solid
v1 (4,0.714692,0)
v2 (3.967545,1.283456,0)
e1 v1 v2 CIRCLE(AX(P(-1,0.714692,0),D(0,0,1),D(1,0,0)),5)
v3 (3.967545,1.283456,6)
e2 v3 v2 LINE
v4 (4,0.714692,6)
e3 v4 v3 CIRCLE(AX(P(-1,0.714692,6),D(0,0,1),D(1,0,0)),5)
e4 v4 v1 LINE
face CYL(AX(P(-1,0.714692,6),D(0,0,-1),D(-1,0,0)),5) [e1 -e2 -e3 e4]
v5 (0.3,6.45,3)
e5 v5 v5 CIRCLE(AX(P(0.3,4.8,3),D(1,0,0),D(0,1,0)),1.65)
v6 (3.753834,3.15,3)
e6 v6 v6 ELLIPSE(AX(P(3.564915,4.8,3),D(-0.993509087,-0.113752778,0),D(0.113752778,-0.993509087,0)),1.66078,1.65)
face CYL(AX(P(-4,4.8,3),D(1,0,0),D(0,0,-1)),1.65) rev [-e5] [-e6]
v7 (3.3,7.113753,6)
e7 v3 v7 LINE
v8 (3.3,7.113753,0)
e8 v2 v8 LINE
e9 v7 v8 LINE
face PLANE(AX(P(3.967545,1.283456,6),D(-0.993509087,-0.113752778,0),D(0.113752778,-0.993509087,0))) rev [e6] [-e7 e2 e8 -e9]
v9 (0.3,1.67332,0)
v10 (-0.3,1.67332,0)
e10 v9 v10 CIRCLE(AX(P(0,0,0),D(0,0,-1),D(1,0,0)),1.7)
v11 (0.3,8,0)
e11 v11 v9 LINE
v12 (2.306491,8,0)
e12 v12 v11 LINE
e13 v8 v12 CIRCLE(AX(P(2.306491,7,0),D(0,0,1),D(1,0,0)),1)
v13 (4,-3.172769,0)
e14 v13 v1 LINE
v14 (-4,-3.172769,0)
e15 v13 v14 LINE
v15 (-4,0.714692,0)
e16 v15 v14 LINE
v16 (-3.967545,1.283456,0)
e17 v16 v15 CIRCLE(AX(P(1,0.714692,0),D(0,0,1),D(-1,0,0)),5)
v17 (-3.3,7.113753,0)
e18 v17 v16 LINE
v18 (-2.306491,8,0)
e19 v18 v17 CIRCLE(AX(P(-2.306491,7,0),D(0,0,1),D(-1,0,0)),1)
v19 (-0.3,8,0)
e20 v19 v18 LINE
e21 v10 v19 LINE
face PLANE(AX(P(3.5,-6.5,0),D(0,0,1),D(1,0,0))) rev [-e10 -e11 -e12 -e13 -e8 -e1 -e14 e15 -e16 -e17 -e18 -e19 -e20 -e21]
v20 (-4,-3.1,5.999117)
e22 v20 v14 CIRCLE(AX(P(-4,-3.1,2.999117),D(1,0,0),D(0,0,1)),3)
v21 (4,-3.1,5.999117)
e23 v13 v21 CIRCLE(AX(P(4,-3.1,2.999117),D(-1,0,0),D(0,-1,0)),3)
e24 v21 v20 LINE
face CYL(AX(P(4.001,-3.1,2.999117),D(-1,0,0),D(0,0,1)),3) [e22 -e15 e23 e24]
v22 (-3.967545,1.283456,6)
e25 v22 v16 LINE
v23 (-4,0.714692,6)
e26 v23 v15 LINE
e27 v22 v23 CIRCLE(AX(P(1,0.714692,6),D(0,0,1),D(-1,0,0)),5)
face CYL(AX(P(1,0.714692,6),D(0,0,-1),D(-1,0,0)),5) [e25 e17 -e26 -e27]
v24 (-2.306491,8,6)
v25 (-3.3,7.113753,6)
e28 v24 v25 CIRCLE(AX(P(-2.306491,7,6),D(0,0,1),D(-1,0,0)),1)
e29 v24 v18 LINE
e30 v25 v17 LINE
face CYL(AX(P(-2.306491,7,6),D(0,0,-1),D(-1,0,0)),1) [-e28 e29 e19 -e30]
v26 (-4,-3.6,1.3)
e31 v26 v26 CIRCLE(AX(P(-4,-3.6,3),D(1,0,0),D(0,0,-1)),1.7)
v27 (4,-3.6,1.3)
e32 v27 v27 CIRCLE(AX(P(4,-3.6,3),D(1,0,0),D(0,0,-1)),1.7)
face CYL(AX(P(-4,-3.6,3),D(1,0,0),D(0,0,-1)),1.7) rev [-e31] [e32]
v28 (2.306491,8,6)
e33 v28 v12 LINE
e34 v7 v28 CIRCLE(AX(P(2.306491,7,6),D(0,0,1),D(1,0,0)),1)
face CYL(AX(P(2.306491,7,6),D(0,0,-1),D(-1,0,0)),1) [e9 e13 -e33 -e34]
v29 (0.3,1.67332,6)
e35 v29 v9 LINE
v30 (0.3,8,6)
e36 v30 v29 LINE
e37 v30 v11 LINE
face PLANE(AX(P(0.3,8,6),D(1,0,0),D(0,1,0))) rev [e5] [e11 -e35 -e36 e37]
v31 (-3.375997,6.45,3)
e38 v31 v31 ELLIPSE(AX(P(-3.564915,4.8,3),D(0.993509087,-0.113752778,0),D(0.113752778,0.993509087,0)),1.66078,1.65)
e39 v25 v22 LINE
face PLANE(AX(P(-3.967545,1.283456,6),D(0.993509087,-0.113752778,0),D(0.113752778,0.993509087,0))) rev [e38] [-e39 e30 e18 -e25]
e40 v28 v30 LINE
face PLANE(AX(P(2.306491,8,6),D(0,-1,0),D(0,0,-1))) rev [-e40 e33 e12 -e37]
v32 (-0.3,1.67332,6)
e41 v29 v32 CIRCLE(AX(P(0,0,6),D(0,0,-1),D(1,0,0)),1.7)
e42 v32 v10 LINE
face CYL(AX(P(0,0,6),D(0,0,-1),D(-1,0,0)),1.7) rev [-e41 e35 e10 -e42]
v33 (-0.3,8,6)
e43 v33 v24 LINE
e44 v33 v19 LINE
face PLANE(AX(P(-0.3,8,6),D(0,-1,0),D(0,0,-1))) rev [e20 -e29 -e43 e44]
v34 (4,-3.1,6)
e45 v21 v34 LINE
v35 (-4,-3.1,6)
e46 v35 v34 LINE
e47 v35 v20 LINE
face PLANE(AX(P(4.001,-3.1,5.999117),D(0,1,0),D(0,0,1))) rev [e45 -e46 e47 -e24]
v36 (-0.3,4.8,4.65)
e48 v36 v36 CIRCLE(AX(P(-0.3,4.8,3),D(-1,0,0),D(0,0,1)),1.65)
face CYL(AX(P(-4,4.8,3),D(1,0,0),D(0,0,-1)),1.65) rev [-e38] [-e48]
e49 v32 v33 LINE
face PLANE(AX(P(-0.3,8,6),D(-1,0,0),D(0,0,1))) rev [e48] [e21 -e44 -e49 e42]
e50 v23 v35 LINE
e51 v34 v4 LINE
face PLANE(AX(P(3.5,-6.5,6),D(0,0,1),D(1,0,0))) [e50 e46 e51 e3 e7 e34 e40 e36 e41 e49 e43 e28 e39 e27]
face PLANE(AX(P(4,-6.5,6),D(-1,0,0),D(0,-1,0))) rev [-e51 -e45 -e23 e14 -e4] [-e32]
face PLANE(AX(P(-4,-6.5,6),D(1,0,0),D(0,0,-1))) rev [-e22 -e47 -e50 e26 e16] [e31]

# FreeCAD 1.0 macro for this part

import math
import FreeCAD as App
import Part
import Sketcher

V = App.Vector

doc = App.newDocument("Part")
body = doc.addObject("PartDesign::Body", "Body")

# Sketch on XY plane
sketch1 = body.newObject("Sketcher::SketchObject", "Sketch")
sketch1.AttachmentSupport = (doc.getObject("XY_Plane"), [""])
sketch1.MapMode = "FlatFace"
sketch1.addGeometry([
    Part.LineSegment(V(-3.5, -7, 0), V(3.5, -7, 0)),  # 0
    Part.ArcOfCircle(Part.Circle(V(3.5, -6.5, 0), V(0, 0, 1), 0.5), math.radians(-90), math.radians(0)),  # 1
    Part.LineSegment(V(4, -6.5, 0), V(4, 0.714692, 0)),  # 2
    Part.ArcOfCircle(Part.Circle(V(-1, 0.714692, 0), V(0, 0, 1), 5), math.radians(0), math.radians(6.531693)),  # 3
    Part.LineSegment(V(3.967545, 1.283456, 0), V(3.3, 7.113753, 0)),  # 4
    Part.ArcOfCircle(Part.Circle(V(2.306491, 7, 0), V(0, 0, 1), 1), math.radians(6.531692), math.radians(90)),  # 5
    Part.LineSegment(V(2.306491, 8, 0), V(0.3, 8, 0)),  # 6
    Part.LineSegment(V(0.3, 8, 0), V(0.3, 1.67332, 0)),  # 7
    Part.ArcOfCircle(Part.Circle(V(0, 0, 0), V(0, 0, 1), 1.7), math.radians(100.164249), math.radians(439.835751)),  # 8
    Part.LineSegment(V(-0.3, 1.67332, 0), V(-0.3, 8, 0)),  # 9
    Part.LineSegment(V(-0.3, 8, 0), V(-2.306491, 8, 0)),  # 10
    Part.ArcOfCircle(Part.Circle(V(-2.306491, 7, 0), V(0, 0, 1), 1), math.radians(90), math.radians(173.468308)),  # 11
    Part.LineSegment(V(-3.3, 7.113753, 0), V(-3.967545, 1.283456, 0)),  # 12
    Part.ArcOfCircle(Part.Circle(V(1, 0.714692, 0), V(0, 0, 1), 5), math.radians(173.468307), math.radians(180)),  # 13
    Part.LineSegment(V(-4, 0.714692, 0), V(-4, -6.5, 0)),  # 14
    Part.ArcOfCircle(Part.Circle(V(-3.5, -6.5, 0), V(0, 0, 1), 0.5), math.radians(180), math.radians(270)),  # 15
], False)
sketch1.addConstraint([
    Sketcher.Constraint("Tangent", 0, 2, 1, 1),
    Sketcher.Constraint("Tangent", 1, 2, 2, 1),
    Sketcher.Constraint("Tangent", 2, 2, 3, 1),
    Sketcher.Constraint("Tangent", 3, 2, 4, 1),
    Sketcher.Constraint("Tangent", 4, 2, 5, 1),
    Sketcher.Constraint("Tangent", 5, 2, 6, 1),
    Sketcher.Constraint("Coincident", 6, 2, 7, 1),
    Sketcher.Constraint("Coincident", 7, 2, 8, 2),
    Sketcher.Constraint("Coincident", 8, 1, 9, 1),
    Sketcher.Constraint("Coincident", 9, 2, 10, 1),
    Sketcher.Constraint("Tangent", 10, 2, 11, 1),
    Sketcher.Constraint("Tangent", 11, 2, 12, 1),
    Sketcher.Constraint("Tangent", 12, 2, 13, 1),
    Sketcher.Constraint("Tangent", 13, 2, 14, 1),
    Sketcher.Constraint("Tangent", 14, 2, 15, 1),
    Sketcher.Constraint("Tangent", 15, 2, 0, 1),
    Sketcher.Constraint("Horizontal", 0),
    Sketcher.Constraint("Vertical", 2),
    Sketcher.Constraint("Horizontal", 6),
    Sketcher.Constraint("Vertical", 7),
    Sketcher.Constraint("Vertical", 9),
    Sketcher.Constraint("Horizontal", 10),
    Sketcher.Constraint("Vertical", 14),
    Sketcher.Constraint("Coincident", 8, 3, -1, 1),
    Sketcher.Constraint("Equal", 5, 11),
    Sketcher.Constraint("Equal", 3, 13),
    Sketcher.Constraint("Equal", 1, 15),
    Sketcher.Constraint("Symmetric", 5, 3, 11, 3, -2),
    Sketcher.Constraint("Symmetric", 3, 3, 13, 3, -2),
    Sketcher.Constraint("Horizontal", 7, 2, 8, 1),
    Sketcher.Constraint("Radius", 3, 5.0),
    Sketcher.Constraint("Radius", 5, 1.0),
    Sketcher.Constraint("Radius", 1, 0.5),
    Sketcher.Constraint("Radius", 8, 1.7),
    Sketcher.Constraint("DistanceX", 0, 1, 0, 2, 7.0),
    Sketcher.Constraint("DistanceY", -1, 1, 5, 3, 7.0),
    Sketcher.Constraint("DistanceY", 0, 2, -1, 1, 7.0),
    Sketcher.Constraint("DistanceX", 6, 2, 4, 2, 3.0),
    Sketcher.Constraint("DistanceX", -1, 1, 4, 2, 3.3),
    Sketcher.Constraint("DistanceY", 2, 1, 2, 2, 7.214692),
])
pad1 = body.newObject("PartDesign::Pad", "Pad")
pad1.Profile = sketch1
pad1.Length = 6

# Sketch on YZ plane
sketch2 = body.newObject("Sketcher::SketchObject", "Sketch001")
sketch2.AttachmentSupport = (doc.getObject("YZ_Plane"), [""])
sketch2.MapMode = "FlatFace"
sketch2.AttachmentOffset = App.Placement(V(0, 0, 4), App.Rotation())
sketch2.addGeometry(Part.Circle(V(-3.6, 3, 0), V(0, 0, 1), 1.7), False)
sketch2.addConstraint([
    Sketcher.Constraint("Diameter", 0, 3.4),
    Sketcher.Constraint("DistanceY", -1, 1, 0, 3, 3.0),
    Sketcher.Constraint("DistanceX", 0, 3, -1, 1, 3.6),
])
pocket1 = body.newObject("PartDesign::Pocket", "Pocket")
pocket1.Profile = sketch2
pocket1.Type = "ThroughAll"

# Sketch on YZ plane
sketch3 = body.newObject("Sketcher::SketchObject", "Sketch002")
sketch3.AttachmentSupport = (doc.getObject("YZ_Plane"), [""])
sketch3.MapMode = "FlatFace"
sketch3.addGeometry(Part.Circle(V(4.8, 3, 0), V(0, 0, 1), 1.65), False)
sketch3.addConstraint([
    Sketcher.Constraint("Diameter", 0, 3.3),
    Sketcher.Constraint("DistanceY", -1, 1, 0, 3, 3.0),
    Sketcher.Constraint("DistanceX", -1, 1, 0, 3, 4.8),
])
pocket2 = body.newObject("PartDesign::Pocket", "Pocket001")
pocket2.Profile = sketch3
pocket2.Type = "ThroughAll"
pocket2.Midplane = True

# Sketch on YZ plane
sketch4 = body.newObject("Sketcher::SketchObject", "Sketch003")
sketch4.AttachmentSupport = (doc.getObject("YZ_Plane"), [""])
sketch4.MapMode = "FlatFace"
sketch4.AttachmentOffset = App.Placement(V(0, 0, -4), App.Rotation())
sketch4.addGeometry([
    Part.LineSegment(V(-3.172769, 0, 0), V(-9.012995, 0, 0)),  # 0
    Part.LineSegment(V(-9.012995, 0, 0), V(-9.012995, 6.094166, 0)),  # 1
    Part.LineSegment(V(-9.012995, 6.094166, 0), V(-3.1, 6.094166, 0)),  # 2
    Part.LineSegment(V(-3.1, 6.094166, 0), V(-3.1, 5.999117, 0)),  # 3
    Part.ArcOfCircle(Part.Circle(V(-3.1, 2.999117, 0), V(0, 0, 1), 3), math.radians(90), math.radians(268.610081)),  # 4
], False)
sketch4.addConstraint([
    Sketcher.Constraint("Coincident", 0, 2, 1, 1),
    Sketcher.Constraint("Coincident", 1, 2, 2, 1),
    Sketcher.Constraint("Coincident", 2, 2, 3, 1),
    Sketcher.Constraint("Coincident", 3, 2, 4, 1),
    Sketcher.Constraint("Coincident", 4, 2, 0, 1),
    Sketcher.Constraint("Horizontal", 0),
    Sketcher.Constraint("Vertical", 1),
    Sketcher.Constraint("Horizontal", 2),
    Sketcher.Constraint("Vertical", 3),
    Sketcher.Constraint("PointOnObject", 0, 2, -1),
    Sketcher.Constraint("Vertical", 4, 3, 2, 2),
    Sketcher.Constraint("Radius", 4, 3.0),
    Sketcher.Constraint("DistanceX", 4, 3, -1, 1, 3.1),
    Sketcher.Constraint("DistanceY", 3, 2, 3, 1, 0.095049),
    Sketcher.Constraint("DistanceX", 0, 2, 0, 1, 5.840226),
    Sketcher.Constraint("DistanceX", 2, 1, 2, 2, 5.912995),
])
pocket3 = body.newObject("PartDesign::Pocket", "Pocket002")
pocket3.Profile = sketch4
pocket3.Length = 8
pocket3.Reversed = True

doc.recompute()
